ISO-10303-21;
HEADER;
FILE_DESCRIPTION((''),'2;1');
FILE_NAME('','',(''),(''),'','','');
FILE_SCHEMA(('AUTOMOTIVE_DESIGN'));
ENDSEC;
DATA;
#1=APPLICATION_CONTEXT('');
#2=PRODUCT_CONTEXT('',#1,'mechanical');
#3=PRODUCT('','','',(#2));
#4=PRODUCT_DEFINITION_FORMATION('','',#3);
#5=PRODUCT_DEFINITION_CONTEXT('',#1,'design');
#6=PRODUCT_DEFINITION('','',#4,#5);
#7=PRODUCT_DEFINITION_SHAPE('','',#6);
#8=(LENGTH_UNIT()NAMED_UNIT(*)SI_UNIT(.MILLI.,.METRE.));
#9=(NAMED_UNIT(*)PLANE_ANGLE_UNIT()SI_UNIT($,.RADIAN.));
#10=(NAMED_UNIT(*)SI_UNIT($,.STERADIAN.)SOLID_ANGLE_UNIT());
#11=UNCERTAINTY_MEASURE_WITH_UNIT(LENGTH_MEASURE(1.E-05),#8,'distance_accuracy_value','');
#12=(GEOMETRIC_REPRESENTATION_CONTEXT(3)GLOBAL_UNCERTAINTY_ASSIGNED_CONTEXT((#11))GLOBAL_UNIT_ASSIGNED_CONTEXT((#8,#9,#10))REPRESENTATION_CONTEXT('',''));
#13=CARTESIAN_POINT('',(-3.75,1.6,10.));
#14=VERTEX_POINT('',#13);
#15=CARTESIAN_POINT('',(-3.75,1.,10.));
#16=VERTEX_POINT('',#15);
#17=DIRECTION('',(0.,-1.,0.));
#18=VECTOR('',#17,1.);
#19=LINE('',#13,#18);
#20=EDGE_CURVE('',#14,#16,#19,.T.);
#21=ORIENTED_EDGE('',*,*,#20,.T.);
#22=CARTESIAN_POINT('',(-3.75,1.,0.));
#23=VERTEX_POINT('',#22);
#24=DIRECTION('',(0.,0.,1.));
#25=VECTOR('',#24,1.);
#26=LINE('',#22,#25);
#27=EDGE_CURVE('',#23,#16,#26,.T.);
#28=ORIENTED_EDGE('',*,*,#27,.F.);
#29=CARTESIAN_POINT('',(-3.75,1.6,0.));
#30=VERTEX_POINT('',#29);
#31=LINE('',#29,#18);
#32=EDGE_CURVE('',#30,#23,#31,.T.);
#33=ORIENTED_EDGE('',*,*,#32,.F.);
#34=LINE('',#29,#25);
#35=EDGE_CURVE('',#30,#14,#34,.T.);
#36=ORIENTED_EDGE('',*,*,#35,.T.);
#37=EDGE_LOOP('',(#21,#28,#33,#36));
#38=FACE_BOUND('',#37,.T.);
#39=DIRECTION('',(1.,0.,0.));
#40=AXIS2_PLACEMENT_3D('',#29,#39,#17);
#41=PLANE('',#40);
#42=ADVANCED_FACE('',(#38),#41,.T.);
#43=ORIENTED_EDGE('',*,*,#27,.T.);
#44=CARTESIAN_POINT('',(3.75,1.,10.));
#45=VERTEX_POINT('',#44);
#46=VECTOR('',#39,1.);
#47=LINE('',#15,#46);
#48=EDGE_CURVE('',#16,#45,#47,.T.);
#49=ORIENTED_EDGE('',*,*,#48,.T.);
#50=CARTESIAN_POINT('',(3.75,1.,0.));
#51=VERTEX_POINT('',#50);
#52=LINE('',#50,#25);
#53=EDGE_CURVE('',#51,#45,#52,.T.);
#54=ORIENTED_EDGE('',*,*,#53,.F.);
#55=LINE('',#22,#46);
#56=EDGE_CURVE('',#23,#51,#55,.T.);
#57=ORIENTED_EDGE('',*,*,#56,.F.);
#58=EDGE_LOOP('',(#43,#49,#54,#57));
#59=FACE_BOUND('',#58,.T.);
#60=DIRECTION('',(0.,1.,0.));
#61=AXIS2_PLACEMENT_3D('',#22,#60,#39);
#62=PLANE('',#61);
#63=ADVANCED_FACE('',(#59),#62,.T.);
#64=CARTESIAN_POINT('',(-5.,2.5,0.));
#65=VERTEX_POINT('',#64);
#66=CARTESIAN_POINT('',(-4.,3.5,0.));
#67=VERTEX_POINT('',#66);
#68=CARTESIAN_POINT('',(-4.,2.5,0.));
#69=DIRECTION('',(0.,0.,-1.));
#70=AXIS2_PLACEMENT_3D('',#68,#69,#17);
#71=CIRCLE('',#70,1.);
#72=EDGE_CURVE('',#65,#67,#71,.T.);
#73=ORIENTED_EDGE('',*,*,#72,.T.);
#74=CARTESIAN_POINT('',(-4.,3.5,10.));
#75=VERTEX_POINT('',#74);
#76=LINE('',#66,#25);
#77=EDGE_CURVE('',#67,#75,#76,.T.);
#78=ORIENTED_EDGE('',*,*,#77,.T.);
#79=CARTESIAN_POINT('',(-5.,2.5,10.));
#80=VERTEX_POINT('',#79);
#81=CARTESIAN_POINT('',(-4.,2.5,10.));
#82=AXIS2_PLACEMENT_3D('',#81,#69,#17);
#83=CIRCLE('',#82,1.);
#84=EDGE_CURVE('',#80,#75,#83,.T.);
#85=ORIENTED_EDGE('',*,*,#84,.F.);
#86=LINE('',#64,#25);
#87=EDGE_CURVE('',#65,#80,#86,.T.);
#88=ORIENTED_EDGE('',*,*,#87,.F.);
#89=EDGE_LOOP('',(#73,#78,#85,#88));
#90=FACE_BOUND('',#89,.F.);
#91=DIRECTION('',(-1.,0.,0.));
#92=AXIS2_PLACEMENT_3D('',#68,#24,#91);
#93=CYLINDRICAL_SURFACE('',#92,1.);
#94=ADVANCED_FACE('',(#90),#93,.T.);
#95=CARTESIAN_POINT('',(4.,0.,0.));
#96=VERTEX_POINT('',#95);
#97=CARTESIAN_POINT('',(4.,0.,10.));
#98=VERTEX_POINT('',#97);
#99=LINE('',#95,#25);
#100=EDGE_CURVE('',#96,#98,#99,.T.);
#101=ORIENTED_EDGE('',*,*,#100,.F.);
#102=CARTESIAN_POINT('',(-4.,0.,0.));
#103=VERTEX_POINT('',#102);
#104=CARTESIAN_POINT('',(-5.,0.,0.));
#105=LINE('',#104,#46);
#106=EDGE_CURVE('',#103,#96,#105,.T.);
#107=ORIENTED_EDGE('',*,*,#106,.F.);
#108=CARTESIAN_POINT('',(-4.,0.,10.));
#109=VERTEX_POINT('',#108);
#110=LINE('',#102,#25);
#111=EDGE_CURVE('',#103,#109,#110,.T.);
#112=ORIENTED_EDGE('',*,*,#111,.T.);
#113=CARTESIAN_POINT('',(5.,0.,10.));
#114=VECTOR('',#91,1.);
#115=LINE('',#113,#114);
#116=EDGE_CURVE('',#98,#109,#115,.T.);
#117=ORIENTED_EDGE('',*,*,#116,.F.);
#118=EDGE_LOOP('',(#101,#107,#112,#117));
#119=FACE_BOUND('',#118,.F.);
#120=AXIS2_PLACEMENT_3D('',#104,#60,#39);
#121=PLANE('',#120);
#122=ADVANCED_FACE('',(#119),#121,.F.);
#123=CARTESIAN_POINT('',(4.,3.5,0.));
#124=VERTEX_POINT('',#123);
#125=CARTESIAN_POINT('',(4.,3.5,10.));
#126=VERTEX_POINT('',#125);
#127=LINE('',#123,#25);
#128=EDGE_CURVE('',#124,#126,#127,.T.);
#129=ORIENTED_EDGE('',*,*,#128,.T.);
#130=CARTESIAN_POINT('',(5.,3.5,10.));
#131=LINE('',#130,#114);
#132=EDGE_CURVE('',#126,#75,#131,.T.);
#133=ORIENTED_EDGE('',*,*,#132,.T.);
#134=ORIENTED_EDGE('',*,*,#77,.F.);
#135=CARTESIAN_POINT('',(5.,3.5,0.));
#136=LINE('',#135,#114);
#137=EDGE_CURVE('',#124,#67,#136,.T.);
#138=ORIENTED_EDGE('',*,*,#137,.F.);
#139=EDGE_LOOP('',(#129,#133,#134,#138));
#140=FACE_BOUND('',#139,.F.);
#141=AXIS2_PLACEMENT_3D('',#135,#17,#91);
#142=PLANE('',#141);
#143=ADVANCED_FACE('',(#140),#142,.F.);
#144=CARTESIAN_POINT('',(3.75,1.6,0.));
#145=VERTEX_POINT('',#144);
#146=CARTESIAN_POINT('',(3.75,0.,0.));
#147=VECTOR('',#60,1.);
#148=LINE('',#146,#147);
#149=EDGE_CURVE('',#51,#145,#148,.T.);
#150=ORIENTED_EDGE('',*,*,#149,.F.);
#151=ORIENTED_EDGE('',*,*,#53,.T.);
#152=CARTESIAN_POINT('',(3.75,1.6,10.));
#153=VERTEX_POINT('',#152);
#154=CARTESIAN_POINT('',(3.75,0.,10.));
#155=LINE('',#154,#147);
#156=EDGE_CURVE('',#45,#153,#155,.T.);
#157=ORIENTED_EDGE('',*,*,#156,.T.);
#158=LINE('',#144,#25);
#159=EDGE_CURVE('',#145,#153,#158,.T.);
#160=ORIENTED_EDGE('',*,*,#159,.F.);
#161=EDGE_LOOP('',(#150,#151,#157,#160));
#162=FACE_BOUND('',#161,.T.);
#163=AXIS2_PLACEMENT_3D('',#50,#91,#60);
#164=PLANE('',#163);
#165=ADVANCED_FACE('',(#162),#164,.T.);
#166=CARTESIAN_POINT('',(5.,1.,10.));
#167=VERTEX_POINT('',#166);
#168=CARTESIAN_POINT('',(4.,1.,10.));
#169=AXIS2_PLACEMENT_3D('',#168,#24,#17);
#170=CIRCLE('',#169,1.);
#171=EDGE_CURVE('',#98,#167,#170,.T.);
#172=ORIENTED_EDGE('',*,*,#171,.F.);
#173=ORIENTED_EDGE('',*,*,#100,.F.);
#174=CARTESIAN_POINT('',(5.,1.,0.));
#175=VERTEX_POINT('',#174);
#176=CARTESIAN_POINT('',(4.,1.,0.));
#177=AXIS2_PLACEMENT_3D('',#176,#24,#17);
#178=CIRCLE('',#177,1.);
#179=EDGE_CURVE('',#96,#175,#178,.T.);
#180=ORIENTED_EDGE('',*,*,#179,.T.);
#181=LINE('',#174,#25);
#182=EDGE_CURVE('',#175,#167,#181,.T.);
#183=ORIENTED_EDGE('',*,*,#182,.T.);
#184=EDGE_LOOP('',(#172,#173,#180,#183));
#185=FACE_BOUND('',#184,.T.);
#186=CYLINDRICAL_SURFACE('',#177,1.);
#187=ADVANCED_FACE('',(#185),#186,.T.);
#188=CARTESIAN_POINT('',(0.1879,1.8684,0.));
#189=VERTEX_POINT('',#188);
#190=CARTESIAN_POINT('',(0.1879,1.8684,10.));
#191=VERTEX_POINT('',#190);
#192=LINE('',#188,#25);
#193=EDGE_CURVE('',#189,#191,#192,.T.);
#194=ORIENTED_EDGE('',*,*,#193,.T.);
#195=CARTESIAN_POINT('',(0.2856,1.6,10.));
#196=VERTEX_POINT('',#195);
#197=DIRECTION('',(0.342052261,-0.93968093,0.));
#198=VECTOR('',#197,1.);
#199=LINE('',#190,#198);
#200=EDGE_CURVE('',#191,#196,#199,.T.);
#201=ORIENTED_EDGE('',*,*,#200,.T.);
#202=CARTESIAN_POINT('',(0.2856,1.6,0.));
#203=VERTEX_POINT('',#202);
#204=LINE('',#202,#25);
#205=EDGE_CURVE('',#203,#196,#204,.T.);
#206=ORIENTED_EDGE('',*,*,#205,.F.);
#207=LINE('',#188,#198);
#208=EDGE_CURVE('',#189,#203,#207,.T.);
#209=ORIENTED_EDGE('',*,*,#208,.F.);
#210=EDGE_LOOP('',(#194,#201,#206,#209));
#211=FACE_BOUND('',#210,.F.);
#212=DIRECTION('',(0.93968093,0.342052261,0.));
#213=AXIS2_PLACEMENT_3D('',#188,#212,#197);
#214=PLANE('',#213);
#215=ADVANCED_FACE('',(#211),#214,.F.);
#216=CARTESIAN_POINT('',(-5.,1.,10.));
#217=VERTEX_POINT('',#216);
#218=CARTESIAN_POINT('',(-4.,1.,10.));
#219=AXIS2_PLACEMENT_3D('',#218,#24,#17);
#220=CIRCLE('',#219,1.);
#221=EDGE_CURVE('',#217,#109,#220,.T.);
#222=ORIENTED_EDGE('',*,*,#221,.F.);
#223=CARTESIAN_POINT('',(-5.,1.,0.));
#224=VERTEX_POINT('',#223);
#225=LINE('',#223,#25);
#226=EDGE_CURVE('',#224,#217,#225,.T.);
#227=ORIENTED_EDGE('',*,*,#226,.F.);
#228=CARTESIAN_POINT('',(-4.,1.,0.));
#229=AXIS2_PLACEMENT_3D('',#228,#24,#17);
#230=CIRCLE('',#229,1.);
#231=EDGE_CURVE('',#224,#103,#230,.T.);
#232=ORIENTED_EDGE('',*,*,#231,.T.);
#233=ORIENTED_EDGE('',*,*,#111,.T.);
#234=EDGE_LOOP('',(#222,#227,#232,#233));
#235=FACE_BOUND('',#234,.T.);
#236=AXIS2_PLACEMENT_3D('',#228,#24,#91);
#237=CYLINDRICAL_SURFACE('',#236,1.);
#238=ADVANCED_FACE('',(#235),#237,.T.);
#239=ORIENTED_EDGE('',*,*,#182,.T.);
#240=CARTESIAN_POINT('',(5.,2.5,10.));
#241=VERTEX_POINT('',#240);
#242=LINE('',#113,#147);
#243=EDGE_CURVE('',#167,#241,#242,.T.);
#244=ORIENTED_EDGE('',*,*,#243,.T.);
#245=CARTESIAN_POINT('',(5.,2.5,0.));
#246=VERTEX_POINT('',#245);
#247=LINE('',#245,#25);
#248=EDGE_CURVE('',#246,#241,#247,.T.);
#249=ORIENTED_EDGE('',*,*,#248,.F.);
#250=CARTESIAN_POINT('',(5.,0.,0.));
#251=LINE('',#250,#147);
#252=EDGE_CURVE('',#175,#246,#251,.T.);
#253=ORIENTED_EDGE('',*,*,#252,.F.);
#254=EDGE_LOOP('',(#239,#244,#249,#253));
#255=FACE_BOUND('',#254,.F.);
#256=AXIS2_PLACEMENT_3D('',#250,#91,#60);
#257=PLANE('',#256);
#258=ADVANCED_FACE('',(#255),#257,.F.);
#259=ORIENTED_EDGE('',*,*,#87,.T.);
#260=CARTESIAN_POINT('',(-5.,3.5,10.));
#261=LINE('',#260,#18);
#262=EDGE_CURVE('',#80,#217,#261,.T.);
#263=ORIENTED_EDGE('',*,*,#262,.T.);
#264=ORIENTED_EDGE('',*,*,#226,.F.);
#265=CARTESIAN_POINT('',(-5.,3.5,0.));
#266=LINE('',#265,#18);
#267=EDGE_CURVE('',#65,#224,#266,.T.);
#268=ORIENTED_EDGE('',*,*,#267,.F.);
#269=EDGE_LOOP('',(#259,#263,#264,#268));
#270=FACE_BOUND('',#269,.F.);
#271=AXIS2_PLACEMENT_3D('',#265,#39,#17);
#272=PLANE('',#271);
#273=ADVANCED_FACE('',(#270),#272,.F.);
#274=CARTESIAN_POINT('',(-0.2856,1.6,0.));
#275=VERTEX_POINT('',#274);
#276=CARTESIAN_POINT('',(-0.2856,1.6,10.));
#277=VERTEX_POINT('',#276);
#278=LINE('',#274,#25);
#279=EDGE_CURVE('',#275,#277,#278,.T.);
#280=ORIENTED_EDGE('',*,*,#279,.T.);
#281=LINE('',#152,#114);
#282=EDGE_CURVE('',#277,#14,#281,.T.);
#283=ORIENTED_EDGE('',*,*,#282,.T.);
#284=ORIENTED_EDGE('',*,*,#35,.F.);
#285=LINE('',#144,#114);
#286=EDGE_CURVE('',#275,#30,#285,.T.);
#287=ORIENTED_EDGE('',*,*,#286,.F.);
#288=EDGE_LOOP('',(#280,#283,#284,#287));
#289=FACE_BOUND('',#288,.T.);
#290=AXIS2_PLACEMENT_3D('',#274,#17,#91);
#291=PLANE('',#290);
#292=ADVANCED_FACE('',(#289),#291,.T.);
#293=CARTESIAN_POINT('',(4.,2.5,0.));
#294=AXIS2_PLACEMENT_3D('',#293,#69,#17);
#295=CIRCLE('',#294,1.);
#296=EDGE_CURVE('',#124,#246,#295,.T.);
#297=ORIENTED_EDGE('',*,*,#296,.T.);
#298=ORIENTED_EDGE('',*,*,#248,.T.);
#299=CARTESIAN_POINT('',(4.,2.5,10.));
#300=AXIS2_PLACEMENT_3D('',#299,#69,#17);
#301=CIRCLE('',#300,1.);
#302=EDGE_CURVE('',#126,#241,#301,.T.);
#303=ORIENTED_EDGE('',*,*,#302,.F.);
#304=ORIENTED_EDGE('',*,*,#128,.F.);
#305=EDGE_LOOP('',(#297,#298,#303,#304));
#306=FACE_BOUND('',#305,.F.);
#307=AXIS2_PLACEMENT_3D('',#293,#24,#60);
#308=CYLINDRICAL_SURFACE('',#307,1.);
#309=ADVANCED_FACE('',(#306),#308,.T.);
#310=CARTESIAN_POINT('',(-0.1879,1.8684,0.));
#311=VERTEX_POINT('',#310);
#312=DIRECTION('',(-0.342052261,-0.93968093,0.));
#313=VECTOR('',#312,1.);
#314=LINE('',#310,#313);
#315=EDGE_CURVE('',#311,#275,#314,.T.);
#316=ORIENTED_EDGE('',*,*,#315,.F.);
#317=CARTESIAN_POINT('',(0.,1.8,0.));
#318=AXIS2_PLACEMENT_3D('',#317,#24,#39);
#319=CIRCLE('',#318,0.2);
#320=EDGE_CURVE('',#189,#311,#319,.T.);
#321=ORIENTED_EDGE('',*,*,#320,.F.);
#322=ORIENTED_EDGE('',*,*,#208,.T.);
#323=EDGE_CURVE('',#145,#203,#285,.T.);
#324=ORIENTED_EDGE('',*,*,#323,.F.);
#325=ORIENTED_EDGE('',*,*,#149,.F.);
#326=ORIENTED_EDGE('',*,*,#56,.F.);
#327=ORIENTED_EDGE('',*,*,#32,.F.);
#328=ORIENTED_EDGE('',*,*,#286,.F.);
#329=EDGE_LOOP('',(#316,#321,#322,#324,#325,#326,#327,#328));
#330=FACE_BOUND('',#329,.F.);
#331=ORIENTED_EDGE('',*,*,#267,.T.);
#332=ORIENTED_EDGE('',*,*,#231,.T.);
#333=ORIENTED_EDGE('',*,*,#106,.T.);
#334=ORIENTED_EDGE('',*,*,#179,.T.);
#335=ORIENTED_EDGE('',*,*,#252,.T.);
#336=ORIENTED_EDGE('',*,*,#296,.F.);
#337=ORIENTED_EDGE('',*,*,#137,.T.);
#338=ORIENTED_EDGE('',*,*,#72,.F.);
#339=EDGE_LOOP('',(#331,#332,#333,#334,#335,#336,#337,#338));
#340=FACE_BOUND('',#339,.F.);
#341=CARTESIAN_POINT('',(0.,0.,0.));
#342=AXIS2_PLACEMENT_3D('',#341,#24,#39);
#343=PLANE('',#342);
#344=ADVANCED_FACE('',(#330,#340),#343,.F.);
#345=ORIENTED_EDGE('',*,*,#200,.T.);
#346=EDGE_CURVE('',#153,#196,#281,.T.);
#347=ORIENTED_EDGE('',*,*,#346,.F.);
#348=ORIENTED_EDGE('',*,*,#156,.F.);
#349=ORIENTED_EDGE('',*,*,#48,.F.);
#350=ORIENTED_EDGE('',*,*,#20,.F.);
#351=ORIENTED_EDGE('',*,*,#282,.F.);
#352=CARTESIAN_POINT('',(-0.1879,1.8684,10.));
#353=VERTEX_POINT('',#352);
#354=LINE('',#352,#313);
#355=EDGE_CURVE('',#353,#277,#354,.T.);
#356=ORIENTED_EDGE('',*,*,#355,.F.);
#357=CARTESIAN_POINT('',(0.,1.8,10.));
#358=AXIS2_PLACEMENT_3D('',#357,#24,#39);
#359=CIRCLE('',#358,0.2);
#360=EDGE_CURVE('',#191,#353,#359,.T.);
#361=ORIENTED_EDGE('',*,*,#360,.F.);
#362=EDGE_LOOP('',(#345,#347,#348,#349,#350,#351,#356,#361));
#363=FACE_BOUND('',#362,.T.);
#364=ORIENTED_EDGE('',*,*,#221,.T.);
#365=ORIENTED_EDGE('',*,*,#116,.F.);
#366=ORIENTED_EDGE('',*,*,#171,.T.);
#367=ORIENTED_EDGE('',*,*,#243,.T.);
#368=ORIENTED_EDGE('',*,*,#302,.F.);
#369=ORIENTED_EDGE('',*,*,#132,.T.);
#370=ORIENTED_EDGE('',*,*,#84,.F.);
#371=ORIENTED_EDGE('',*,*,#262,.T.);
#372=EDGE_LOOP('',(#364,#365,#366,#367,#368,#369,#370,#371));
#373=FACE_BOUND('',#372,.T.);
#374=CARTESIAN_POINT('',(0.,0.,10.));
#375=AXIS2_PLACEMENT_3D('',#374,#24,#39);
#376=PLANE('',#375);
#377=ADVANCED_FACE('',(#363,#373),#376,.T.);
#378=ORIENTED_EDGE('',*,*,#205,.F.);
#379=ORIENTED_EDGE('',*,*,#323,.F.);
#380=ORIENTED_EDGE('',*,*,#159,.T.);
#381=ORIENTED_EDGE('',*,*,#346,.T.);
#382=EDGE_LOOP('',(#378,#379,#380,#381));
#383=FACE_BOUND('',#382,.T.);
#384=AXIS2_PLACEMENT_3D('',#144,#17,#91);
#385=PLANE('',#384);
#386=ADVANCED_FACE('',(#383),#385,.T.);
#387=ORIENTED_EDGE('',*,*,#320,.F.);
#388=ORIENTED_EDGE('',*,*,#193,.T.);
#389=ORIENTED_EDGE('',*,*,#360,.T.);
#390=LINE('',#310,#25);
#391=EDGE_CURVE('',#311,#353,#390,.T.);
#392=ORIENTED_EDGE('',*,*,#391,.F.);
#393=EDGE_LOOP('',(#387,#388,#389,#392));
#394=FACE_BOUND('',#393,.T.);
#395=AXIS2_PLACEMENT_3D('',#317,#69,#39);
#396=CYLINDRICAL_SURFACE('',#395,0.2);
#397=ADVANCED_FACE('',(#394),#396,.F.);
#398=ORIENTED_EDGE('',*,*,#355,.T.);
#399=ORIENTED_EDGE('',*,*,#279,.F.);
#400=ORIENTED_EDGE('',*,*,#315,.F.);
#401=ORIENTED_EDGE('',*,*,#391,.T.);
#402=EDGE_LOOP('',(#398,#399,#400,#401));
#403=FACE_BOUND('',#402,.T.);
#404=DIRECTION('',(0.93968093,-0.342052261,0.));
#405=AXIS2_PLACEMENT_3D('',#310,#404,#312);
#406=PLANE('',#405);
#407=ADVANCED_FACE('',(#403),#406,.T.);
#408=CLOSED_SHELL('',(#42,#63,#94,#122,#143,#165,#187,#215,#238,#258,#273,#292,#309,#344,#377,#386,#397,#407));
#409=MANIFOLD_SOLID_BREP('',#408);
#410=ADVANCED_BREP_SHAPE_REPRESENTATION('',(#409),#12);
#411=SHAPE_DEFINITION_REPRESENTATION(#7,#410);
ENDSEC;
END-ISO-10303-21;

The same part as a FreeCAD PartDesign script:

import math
import FreeCAD as App
import Part
import Sketcher
from FreeCAD import Vector


def edges_at(feature, points):
    """Names of the edges that pass closest to the given points."""
    edges = feature.Shape.Edges
    near = lambda p: min(range(len(edges)), key=lambda i: edges[i].distToShape(Part.Vertex(*p))[0])
    return sorted({f"Edge{near(p) + 1}" for p in points})

doc = App.newDocument("Part")
body = doc.addObject("PartDesign::Body", "Body")

sketch1 = body.newObject("Sketcher::SketchObject", "Sketch")
sketch1.AttachmentSupport = (doc.getObject("XY_Plane"), [""])
sketch1.MapMode = "FlatFace"
sketch1.addGeometry([
    Part.LineSegment(Vector(-5, 3.5, 0), Vector(-5, 0, 0)),
    Part.LineSegment(Vector(-5, 0, 0), Vector(5, 0, 0)),
    Part.LineSegment(Vector(5, 0, 0), Vector(5, 3.5, 0)),
    Part.LineSegment(Vector(5, 3.5, 0), Vector(-5, 3.5, 0)),
    Part.LineSegment(Vector(3.75, 1.6, 0), Vector(3.75, 1, 0)),
    Part.LineSegment(Vector(3.75, 1, 0), Vector(-3.75, 1, 0)),
    Part.LineSegment(Vector(-3.75, 1, 0), Vector(-3.75, 1.6, 0)),
    Part.LineSegment(Vector(-3.75, 1.6, 0), Vector(-0.29, 1.6, 0)),
    Part.LineSegment(Vector(-0.29, 1.6, 0), Vector(-0.19, 1.87, 0)),
    Part.ArcOfCircle(Part.Circle(Vector(0, 1.8, 0), Vector(0, 0, 1), 0.2), math.radians(20), math.radians(160)),
    Part.LineSegment(Vector(0.19, 1.87, 0), Vector(0.29, 1.6, 0)),
    Part.LineSegment(Vector(0.29, 1.6, 0), Vector(3.75, 1.6, 0)),
], False)
sketch1.addConstraint([
    Sketcher.Constraint("Coincident", 0, 2, 1, 1),
    Sketcher.Constraint("Coincident", 1, 2, 2, 1),
    Sketcher.Constraint("Coincident", 2, 2, 3, 1),
    Sketcher.Constraint("Coincident", 3, 2, 0, 1),
    Sketcher.Constraint("Coincident", 4, 2, 5, 1),
    Sketcher.Constraint("Coincident", 5, 2, 6, 1),
    Sketcher.Constraint("Coincident", 6, 2, 7, 1),
    Sketcher.Constraint("Coincident", 7, 2, 8, 1),
    Sketcher.Constraint("Tangent", 8, 2, 9, 2),
    Sketcher.Constraint("Tangent", 9, 1, 10, 1),
    Sketcher.Constraint("Coincident", 10, 2, 11, 1),
    Sketcher.Constraint("Coincident", 11, 2, 4, 1),
    Sketcher.Constraint("Vertical", 0),
    Sketcher.Constraint("Horizontal", 1),
    Sketcher.Constraint("Vertical", 2),
    Sketcher.Constraint("Horizontal", 3),
    Sketcher.Constraint("Vertical", 4),
    Sketcher.Constraint("Horizontal", 5),
    Sketcher.Constraint("Vertical", 6),
    Sketcher.Constraint("Horizontal", 7),
    Sketcher.Constraint("Horizontal", 11),
    Sketcher.Constraint("Symmetric", 0, 2, 1, 2, -1, 1),
    Sketcher.Constraint("Symmetric", 8, 2, 9, 1, -2),
    Sketcher.Constraint("Symmetric", 6, 2, 11, 2, -2),
    Sketcher.Constraint("Radius", 9, 0.2),
    Sketcher.Constraint("DistanceX", 1, 1, 1, 2, 10.0),
    Sketcher.Constraint("DistanceX", 5, 2, 5, 1, 7.5),
    Sketcher.Constraint("DistanceY", 4, 2, 4, 1, 0.6),
    Sketcher.Constraint("DistanceY", -1, 1, 4, 2, 1.0),
    Sketcher.Constraint("DistanceY", 0, 2, 0, 1, 3.5),
    Sketcher.Constraint("DistanceY", -1, 1, 9, 3, 1.8),
    Sketcher.Constraint("DistanceX", 7, 1, 7, 2, 3.4644),
])
pad1 = body.newObject("PartDesign::Pad", "Pad")
pad1.Profile = sketch1
pad1.Length = 10
doc.recompute()

fillet = body.newObject("PartDesign::Fillet", "Fillet")
fillet.Base = (pad1, edges_at(pad1, [
    (5, 3.5, 5),
    (5, 0, 5),
    (-5, 3.5, 5),
    (-5, 0, 5),
]))
fillet.Radius = 1

doc.recompute()
